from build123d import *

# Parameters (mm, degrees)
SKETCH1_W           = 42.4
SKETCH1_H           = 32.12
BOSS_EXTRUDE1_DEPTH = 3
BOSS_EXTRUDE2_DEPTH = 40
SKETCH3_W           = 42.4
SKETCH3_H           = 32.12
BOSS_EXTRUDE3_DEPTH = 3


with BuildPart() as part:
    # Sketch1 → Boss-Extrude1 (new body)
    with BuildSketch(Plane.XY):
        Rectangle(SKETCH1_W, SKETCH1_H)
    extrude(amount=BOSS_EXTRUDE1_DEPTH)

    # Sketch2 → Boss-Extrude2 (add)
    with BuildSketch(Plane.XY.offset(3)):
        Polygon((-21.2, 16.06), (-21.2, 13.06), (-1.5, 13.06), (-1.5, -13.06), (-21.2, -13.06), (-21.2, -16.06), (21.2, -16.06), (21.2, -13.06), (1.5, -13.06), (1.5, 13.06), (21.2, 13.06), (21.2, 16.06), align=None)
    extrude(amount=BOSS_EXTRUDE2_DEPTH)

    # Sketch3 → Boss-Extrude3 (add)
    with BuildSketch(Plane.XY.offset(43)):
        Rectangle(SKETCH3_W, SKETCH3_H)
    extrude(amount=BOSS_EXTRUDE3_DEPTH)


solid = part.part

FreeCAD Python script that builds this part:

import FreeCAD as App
import Part
import Sketcher

V = App.Vector

doc = App.newDocument("Part")
body = doc.addObject("PartDesign::Body", "Body")

sketch1 = body.newObject("Sketcher::SketchObject", "Sketch")
sketch1.AttachmentSupport = (doc.getObject("XY_Plane"), [""])
sketch1.MapMode = "FlatFace"
sketch1.addGeometry(Part.LineSegment(V(-21.2, 16.06, 0), V(-21.2, -16.06, 0)), False)
sketch1.addGeometry(Part.LineSegment(V(-21.2, -16.06, 0), V(21.2, -16.06, 0)), False)
sketch1.addGeometry(Part.LineSegment(V(21.2, -16.06, 0), V(21.2, 16.06, 0)), False)
sketch1.addGeometry(Part.LineSegment(V(21.2, 16.06, 0), V(-21.2, 16.06, 0)), False)
sketch1.addConstraint(Sketcher.Constraint("Coincident", 0, 2, 1, 1))
sketch1.addConstraint(Sketcher.Constraint("Coincident", 1, 2, 2, 1))
sketch1.addConstraint(Sketcher.Constraint("Coincident", 2, 2, 3, 1))
sketch1.addConstraint(Sketcher.Constraint("Coincident", 3, 2, 0, 1))
sketch1.addConstraint(Sketcher.Constraint("Vertical", 0))
sketch1.addConstraint(Sketcher.Constraint("Horizontal", 1))
sketch1.addConstraint(Sketcher.Constraint("Vertical", 2))
sketch1.addConstraint(Sketcher.Constraint("Horizontal", 3))
sketch1.addConstraint(Sketcher.Constraint("Symmetric", 0, 2, 2, 2, -1, 1))
sketch1.addConstraint(Sketcher.Constraint("DistanceX", 1, 1, 1, 2, 42.4))
sketch1.addConstraint(Sketcher.Constraint("DistanceY", 0, 2, 0, 1, 32.12))
pad1 = body.newObject("PartDesign::Pad", "Pad")
pad1.Profile = sketch1
pad1.Length = 3

sketch2 = body.newObject("Sketcher::SketchObject", "Sketch001")
sketch2.AttachmentSupport = (doc.getObject("XY_Plane"), [""])
sketch2.MapMode = "FlatFace"
sketch2.AttachmentOffset = App.Placement(V(0, 0, 3), App.Rotation())
sketch2.addGeometry(Part.LineSegment(V(-21.2, 16.06, 0), V(-21.2, 13.06, 0)), False)
sketch2.addGeometry(Part.LineSegment(V(-21.2, 13.06, 0), V(-1.5, 13.06, 0)), False)
sketch2.addGeometry(Part.LineSegment(V(-1.5, 13.06, 0), V(-1.5, -13.06, 0)), False)
sketch2.addGeometry(Part.LineSegment(V(-1.5, -13.06, 0), V(-21.2, -13.06, 0)), False)
sketch2.addGeometry(Part.LineSegment(V(-21.2, -13.06, 0), V(-21.2, -16.06, 0)), False)
sketch2.addGeometry(Part.LineSegment(V(-21.2, -16.06, 0), V(21.2, -16.06, 0)), False)
sketch2.addGeometry(Part.LineSegment(V(21.2, -16.06, 0), V(21.2, -13.06, 0)), False)
sketch2.addGeometry(Part.LineSegment(V(21.2, -13.06, 0), V(1.5, -13.06, 0)), False)
sketch2.addGeometry(Part.LineSegment(V(1.5, -13.06, 0), V(1.5, 13.06, 0)), False)
sketch2.addGeometry(Part.LineSegment(V(1.5, 13.06, 0), V(21.2, 13.06, 0)), False)
sketch2.addGeometry(Part.LineSegment(V(21.2, 13.06, 0), V(21.2, 16.06, 0)), False)
sketch2.addGeometry(Part.LineSegment(V(21.2, 16.06, 0), V(-21.2, 16.06, 0)), False)
sketch2.addConstraint(Sketcher.Constraint("Coincident", 0, 2, 1, 1))
sketch2.addConstraint(Sketcher.Constraint("Coincident", 1, 2, 2, 1))
sketch2.addConstraint(Sketcher.Constraint("Coincident", 2, 2, 3, 1))
sketch2.addConstraint(Sketcher.Constraint("Coincident", 3, 2, 4, 1))
sketch2.addConstraint(Sketcher.Constraint("Coincident", 4, 2, 5, 1))
sketch2.addConstraint(Sketcher.Constraint("Coincident", 5, 2, 6, 1))
sketch2.addConstraint(Sketcher.Constraint("Coincident", 6, 2, 7, 1))
sketch2.addConstraint(Sketcher.Constraint("Coincident", 7, 2, 8, 1))
sketch2.addConstraint(Sketcher.Constraint("Coincident", 8, 2, 9, 1))
sketch2.addConstraint(Sketcher.Constraint("Coincident", 9, 2, 10, 1))
sketch2.addConstraint(Sketcher.Constraint("Coincident", 10, 2, 11, 1))
sketch2.addConstraint(Sketcher.Constraint("Coincident", 11, 2, 0, 1))
sketch2.addConstraint(Sketcher.Constraint("Vertical", 0))
sketch2.addConstraint(Sketcher.Constraint("Horizontal", 1))
sketch2.addConstraint(Sketcher.Constraint("Vertical", 2))
sketch2.addConstraint(Sketcher.Constraint("Horizontal", 3))
sketch2.addConstraint(Sketcher.Constraint("Vertical", 4))
sketch2.addConstraint(Sketcher.Constraint("Horizontal", 5))
sketch2.addConstraint(Sketcher.Constraint("Vertical", 6))
sketch2.addConstraint(Sketcher.Constraint("Horizontal", 7))
sketch2.addConstraint(Sketcher.Constraint("Vertical", 8))
sketch2.addConstraint(Sketcher.Constraint("Horizontal", 9))
sketch2.addConstraint(Sketcher.Constraint("Vertical", 10))
sketch2.addConstraint(Sketcher.Constraint("Horizontal", 11))
sketch2.addConstraint(Sketcher.Constraint("Symmetric", 0, 2, 6, 2, -1, 1))
sketch2.addConstraint(Sketcher.Constraint("Symmetric", 2, 2, 8, 2, -1, 1))
sketch2.addConstraint(Sketcher.Constraint("Symmetric", 4, 2, 10, 2, -1, 1))
sketch2.addConstraint(Sketcher.Constraint("Symmetric", 3, 2, 6, 2, -2))
sketch2.addConstraint(Sketcher.Constraint("DistanceY", 0, 2, 0, 1, 3.0))
sketch2.addConstraint(Sketcher.Constraint("DistanceX", 1, 1, 1, 2, 19.7))
sketch2.addConstraint(Sketcher.Constraint("DistanceX", 5, 1, 5, 2, 42.4))
sketch2.addConstraint(Sketcher.Constraint("DistanceY", 2, 2, 2, 1, 26.12))
pad2 = body.newObject("PartDesign::Pad", "Pad001")
pad2.Profile = sketch2
pad2.Length = 40

sketch3 = body.newObject("Sketcher::SketchObject", "Sketch002")
sketch3.AttachmentSupport = (doc.getObject("XY_Plane"), [""])
sketch3.MapMode = "FlatFace"
sketch3.AttachmentOffset = App.Placement(V(0, 0, 43), App.Rotation())
sketch3.addGeometry(Part.LineSegment(V(-21.2, 16.06, 0), V(-21.2, -16.06, 0)), False)
sketch3.addGeometry(Part.LineSegment(V(-21.2, -16.06, 0), V(21.2, -16.06, 0)), False)
sketch3.addGeometry(Part.LineSegment(V(21.2, -16.06, 0), V(21.2, 16.06, 0)), False)
sketch3.addGeometry(Part.LineSegment(V(21.2, 16.06, 0), V(-21.2, 16.06, 0)), False)
sketch3.addConstraint(Sketcher.Constraint("Coincident", 0, 2, 1, 1))
sketch3.addConstraint(Sketcher.Constraint("Coincident", 1, 2, 2, 1))
sketch3.addConstraint(Sketcher.Constraint("Coincident", 2, 2, 3, 1))
sketch3.addConstraint(Sketcher.Constraint("Coincident", 3, 2, 0, 1))
sketch3.addConstraint(Sketcher.Constraint("Vertical", 0))
sketch3.addConstraint(Sketcher.Constraint("Horizontal", 1))
sketch3.addConstraint(Sketcher.Constraint("Vertical", 2))
sketch3.addConstraint(Sketcher.Constraint("Horizontal", 3))
sketch3.addConstraint(Sketcher.Constraint("Symmetric", 0, 2, 2, 2, -1, 1))
sketch3.addConstraint(Sketcher.Constraint("DistanceX", 1, 1, 1, 2, 42.4))
sketch3.addConstraint(Sketcher.Constraint("DistanceY", 0, 2, 0, 1, 32.12))
pad3 = body.newObject("PartDesign::Pad", "Pad002")
pad3.Profile = sketch3
pad3.Length = 3

doc.recompute()
